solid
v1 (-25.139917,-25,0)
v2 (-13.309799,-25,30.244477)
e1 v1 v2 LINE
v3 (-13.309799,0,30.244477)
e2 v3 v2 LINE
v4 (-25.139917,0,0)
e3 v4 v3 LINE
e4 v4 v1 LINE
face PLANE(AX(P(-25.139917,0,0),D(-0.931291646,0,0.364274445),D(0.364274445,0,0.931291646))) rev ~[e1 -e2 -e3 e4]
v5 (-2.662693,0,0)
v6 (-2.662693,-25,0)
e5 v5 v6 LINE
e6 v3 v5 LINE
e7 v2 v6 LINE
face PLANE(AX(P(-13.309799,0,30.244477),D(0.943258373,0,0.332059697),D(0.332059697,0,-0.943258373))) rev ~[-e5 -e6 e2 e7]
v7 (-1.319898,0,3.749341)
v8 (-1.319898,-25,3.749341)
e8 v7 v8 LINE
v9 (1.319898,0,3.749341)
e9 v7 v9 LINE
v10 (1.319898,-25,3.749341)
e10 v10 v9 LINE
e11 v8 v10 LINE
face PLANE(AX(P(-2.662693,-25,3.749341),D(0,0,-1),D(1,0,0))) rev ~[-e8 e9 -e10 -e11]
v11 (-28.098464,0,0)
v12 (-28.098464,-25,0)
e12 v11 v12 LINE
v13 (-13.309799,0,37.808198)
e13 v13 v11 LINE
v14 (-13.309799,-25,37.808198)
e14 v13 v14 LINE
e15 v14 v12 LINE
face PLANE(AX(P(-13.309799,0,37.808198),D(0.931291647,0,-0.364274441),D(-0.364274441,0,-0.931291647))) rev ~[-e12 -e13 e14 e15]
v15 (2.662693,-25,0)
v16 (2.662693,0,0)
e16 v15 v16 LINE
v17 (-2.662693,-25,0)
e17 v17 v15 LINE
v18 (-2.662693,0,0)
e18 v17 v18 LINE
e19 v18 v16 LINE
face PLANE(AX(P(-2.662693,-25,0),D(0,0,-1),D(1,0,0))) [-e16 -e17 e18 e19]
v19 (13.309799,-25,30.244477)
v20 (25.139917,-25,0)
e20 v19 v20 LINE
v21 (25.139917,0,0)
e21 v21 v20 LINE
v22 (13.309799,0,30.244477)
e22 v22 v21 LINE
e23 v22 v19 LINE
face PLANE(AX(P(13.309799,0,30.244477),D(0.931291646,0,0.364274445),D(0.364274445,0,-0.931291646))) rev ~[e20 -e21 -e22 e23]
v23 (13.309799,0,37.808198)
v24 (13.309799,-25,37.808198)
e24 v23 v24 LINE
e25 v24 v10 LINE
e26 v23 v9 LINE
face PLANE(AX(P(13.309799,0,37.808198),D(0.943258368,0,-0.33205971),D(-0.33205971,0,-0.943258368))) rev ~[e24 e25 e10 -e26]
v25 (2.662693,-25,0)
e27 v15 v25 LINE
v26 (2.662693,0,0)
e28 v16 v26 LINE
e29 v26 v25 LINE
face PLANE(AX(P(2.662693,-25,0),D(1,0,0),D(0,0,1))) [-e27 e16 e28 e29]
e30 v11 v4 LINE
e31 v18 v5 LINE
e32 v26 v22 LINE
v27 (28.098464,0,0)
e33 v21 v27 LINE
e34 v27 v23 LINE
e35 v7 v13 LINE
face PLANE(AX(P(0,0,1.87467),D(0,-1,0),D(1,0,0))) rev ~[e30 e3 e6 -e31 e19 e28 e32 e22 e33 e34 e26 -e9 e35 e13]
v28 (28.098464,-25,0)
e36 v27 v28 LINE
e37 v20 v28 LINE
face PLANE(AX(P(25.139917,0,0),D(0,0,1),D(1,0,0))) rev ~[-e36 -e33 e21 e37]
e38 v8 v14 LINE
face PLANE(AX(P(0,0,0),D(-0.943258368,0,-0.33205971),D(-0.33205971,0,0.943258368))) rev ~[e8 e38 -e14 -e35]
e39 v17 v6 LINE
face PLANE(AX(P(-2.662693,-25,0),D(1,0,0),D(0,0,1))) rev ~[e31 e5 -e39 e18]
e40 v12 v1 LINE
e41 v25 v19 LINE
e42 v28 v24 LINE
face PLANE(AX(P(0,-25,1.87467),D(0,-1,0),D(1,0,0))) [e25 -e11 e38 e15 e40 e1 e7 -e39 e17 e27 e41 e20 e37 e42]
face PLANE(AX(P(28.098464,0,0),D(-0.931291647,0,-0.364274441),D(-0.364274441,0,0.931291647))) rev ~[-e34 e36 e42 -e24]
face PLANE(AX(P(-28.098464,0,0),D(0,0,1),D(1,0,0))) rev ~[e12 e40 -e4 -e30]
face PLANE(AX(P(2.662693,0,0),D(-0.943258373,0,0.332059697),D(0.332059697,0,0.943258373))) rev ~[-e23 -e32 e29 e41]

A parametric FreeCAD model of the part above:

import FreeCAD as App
import Part
import Sketcher
from FreeCAD import Vector


def add_polygon(sketch, points):
    """Adds a closed chain of lines whose ends are joined by coincident constraints."""
    first, n = sketch.GeometryCount, len(points)
    for a, b in zip(points, points[1:] + points[:1]):
        sketch.addGeometry(Part.LineSegment(App.Vector(*a, 0), App.Vector(*b, 0)), False)
    for i in range(n):
        sketch.addConstraint(Sketcher.Constraint("Coincident", first + i, 2, first + (i + 1) % n, 1))

doc = App.newDocument("Part")
body = doc.addObject("PartDesign::Body", "Body")
body.AllowCompound = True

# Sketch on XZ plane
sketch1 = body.newObject("Sketcher::SketchObject", "Sketch")
sketch1.AttachmentSupport = (doc.getObject("XZ_Plane"), [""])
sketch1.MapMode = "FlatFace"
add_polygon(sketch1, [(-13.309799, 37.808198), (-28.098464, 0), (-25.139917, 0), (-13.309799, 30.244477), (-2.662693, 0), (0, 0)])  # lines 0-5
add_polygon(sketch1, [(13.309799, 37.808198), (0, 0), (2.662693, 0), (13.309799, 30.244477), (25.139917, 0), (28.098464, 0)])  # lines 6-11
sketch1.addConstraint([
    Sketcher.Constraint("Horizontal", 1),
    Sketcher.Constraint("Horizontal", 4),
    Sketcher.Constraint("Horizontal", 7),
    Sketcher.Constraint("Horizontal", 10),
    Sketcher.Constraint("Coincident", 4, 2, -1, 1),
    Sketcher.Constraint("Coincident", 6, 2, -1, 1),
    Sketcher.Constraint("Symmetric", 1, 2, 9, 2, -1, 1),
    Sketcher.Constraint("Symmetric", 2, 2, 8, 2, -2),
    Sketcher.Constraint("Symmetric", 0, 2, 10, 2, -2),
    Sketcher.Constraint("Symmetric", 5, 2, 11, 2, -2),
    Sketcher.Constraint("Parallel", 0, 2),
    Sketcher.Constraint("Parallel", 3, 5),
    Sketcher.Constraint("Parallel", 6, 8),
    Sketcher.Constraint("Vertical", 2, 2, 5, 2),
    Sketcher.Constraint("DistanceX", 2, 2, -1, 1, 13.309799),
    Sketcher.Constraint("Distance", 0, 40.597592),
    Sketcher.Constraint("Distance", 2, 32.475838),
    Sketcher.Constraint("Distance", 3, 32.063831),
])
pad1 = body.newObject("PartDesign::Pad", "Pad")
pad1.Profile = sketch1
pad1.Length = 25

# Sketch on XZ plane
sketch2 = body.newObject("Sketcher::SketchObject", "Sketch001")
sketch2.AttachmentSupport = (doc.getObject("XZ_Plane"), [""])
sketch2.MapMode = "FlatFace"
sketch2.AttachmentOffset = App.Placement(Vector(0, 0, 25), App.Rotation())
add_polygon(sketch2, [(-2.662693, 3.749341), (-2.662693, 0), (2.662693, 0), (2.662693, 3.749341)])  # lines 0-3
sketch2.addConstraint([
    Sketcher.Constraint("Vertical", 0),
    Sketcher.Constraint("Horizontal", 1),
    Sketcher.Constraint("Vertical", 2),
    Sketcher.Constraint("Horizontal", 3),
    Sketcher.Constraint("Symmetric", 0, 2, 1, 2, -1, 1),
    Sketcher.Constraint("DistanceY", 0, 2, 0, 1, 3.749341),
    Sketcher.Constraint("DistanceX", 1, 1, 1, 2, 5.325386),
])
pad2 = body.newObject("PartDesign::Pad", "Pad001")
pad2.Profile = sketch2
pad2.Length = 25
pad2.Reversed = True

doc.recompute()
